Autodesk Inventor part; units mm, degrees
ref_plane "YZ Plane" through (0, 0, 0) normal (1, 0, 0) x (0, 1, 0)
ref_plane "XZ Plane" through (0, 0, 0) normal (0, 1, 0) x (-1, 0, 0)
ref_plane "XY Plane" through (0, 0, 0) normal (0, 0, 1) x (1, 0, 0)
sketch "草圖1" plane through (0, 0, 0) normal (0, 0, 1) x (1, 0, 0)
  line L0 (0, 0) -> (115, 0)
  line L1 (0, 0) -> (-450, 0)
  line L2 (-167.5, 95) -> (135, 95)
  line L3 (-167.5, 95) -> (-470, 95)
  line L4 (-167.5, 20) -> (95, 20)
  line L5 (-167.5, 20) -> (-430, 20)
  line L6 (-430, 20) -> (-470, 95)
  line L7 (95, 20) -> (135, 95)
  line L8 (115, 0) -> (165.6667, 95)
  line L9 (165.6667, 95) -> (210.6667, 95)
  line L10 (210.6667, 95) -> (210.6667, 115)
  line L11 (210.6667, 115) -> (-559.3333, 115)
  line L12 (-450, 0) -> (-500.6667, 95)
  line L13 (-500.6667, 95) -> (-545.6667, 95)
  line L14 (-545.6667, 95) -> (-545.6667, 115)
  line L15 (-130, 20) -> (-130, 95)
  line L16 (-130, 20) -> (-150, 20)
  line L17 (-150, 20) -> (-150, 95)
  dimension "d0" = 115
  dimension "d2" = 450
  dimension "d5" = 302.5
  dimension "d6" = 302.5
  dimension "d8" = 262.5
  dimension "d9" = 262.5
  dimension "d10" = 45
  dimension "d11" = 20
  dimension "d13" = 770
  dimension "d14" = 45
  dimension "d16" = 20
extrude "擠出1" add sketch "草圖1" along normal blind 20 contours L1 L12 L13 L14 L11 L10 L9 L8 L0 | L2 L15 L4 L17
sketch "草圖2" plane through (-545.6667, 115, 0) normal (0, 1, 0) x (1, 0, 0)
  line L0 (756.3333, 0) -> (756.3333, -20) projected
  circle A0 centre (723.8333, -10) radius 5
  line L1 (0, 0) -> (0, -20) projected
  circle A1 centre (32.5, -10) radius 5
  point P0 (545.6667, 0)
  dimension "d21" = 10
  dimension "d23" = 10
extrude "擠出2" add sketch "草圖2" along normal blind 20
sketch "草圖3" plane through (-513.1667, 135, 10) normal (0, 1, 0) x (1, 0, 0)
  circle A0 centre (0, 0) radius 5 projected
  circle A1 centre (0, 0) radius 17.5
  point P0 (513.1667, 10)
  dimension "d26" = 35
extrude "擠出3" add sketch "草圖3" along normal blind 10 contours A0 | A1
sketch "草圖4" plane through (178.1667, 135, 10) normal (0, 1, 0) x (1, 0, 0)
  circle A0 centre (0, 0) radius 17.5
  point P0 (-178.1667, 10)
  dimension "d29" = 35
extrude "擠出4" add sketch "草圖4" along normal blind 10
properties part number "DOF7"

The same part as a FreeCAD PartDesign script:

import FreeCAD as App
import Part
import Sketcher
from FreeCAD import Vector
Q = App.Units.Quantity

doc = App.newDocument("Part")
params = doc.addObject("Spreadsheet::Sheet", "Params")
for row, (alias, value) in enumerate([
    ("sketch1_width", "45 mm"),
    ("sketch1_height", "20 mm"),
    ("sketch1_width2", "320 mm"),
    ("pad1_length", "20 mm"),
    ("sketch2_diameter", "10 mm"),
    ("pad2_length", "20 mm"),
    ("sketch3_diameter", "35 mm"),
    ("pad3_length", "10 mm"),
    ("sketch4_diameter", "35 mm"),
    ("pad4_length", "10 mm"),
], start=1):
    params.set(f"A{row}", alias)
    params.set(f"B{row}", "=" + value)
    params.setAlias(f"B{row}", alias)

body = doc.addObject("PartDesign::Body", "Body")

# Sketch on XY plane
sketch1 = body.newObject("Sketcher::SketchObject", "Sketch")
sketch1.AttachmentSupport = (doc.getObject("XY_Plane"), [""])
sketch1.MapMode = "FlatFace"
sketch1.addGeometry(Part.LineSegment(Vector(-450, 0, 0), Vector(115, 0, 0)), False)
sketch1.addGeometry(Part.LineSegment(Vector(115, 0, 0), Vector(166, 95, 0)), False)
sketch1.addGeometry(Part.LineSegment(Vector(166, 95, 0), Vector(211, 95, 0)), False)
sketch1.addGeometry(Part.LineSegment(Vector(211, 95, 0), Vector(211, 115, 0)), False)
sketch1.addGeometry(Part.LineSegment(Vector(211, 115, 0), Vector(-546, 115, 0)), False)
sketch1.addGeometry(Part.LineSegment(Vector(-546, 115, 0), Vector(-546, 95, 0)), False)
sketch1.addGeometry(Part.LineSegment(Vector(-546, 95, 0), Vector(-501, 95, 0)), False)
sketch1.addGeometry(Part.LineSegment(Vector(-501, 95, 0), Vector(-450, 0, 0)), False)
sketch1.addGeometry(Part.LineSegment(Vector(-470, 95, 0), Vector(-150, 95, 0)), False)
sketch1.addGeometry(Part.LineSegment(Vector(-150, 95, 0), Vector(-150, 20, 0)), False)
sketch1.addGeometry(Part.LineSegment(Vector(-150, 20, 0), Vector(-430, 20, 0)), False)
sketch1.addGeometry(Part.LineSegment(Vector(-430, 20, 0), Vector(-470, 95, 0)), False)
sketch1.addGeometry(Part.LineSegment(Vector(95, 20, 0), Vector(-130, 20, 0)), False)
sketch1.addGeometry(Part.LineSegment(Vector(-130, 20, 0), Vector(-130, 95, 0)), False)
sketch1.addGeometry(Part.LineSegment(Vector(-130, 95, 0), Vector(135, 95, 0)), False)
sketch1.addGeometry(Part.LineSegment(Vector(135, 95, 0), Vector(95, 20, 0)), False)
sketch1.addConstraint(Sketcher.Constraint("Coincident", 0, 2, 1, 1))
sketch1.addConstraint(Sketcher.Constraint("Coincident", 1, 2, 2, 1))
sketch1.addConstraint(Sketcher.Constraint("Coincident", 2, 2, 3, 1))
sketch1.addConstraint(Sketcher.Constraint("Coincident", 3, 2, 4, 1))
sketch1.addConstraint(Sketcher.Constraint("Coincident", 4, 2, 5, 1))
sketch1.addConstraint(Sketcher.Constraint("Coincident", 5, 2, 6, 1))
sketch1.addConstraint(Sketcher.Constraint("Coincident", 6, 2, 7, 1))
sketch1.addConstraint(Sketcher.Constraint("Coincident", 7, 2, 0, 1))
sketch1.addConstraint(Sketcher.Constraint("Coincident", 8, 2, 9, 1))
sketch1.addConstraint(Sketcher.Constraint("Coincident", 9, 2, 10, 1))
sketch1.addConstraint(Sketcher.Constraint("Coincident", 10, 2, 11, 1))
sketch1.addConstraint(Sketcher.Constraint("Coincident", 11, 2, 8, 1))
sketch1.addConstraint(Sketcher.Constraint("Coincident", 12, 2, 13, 1))
sketch1.addConstraint(Sketcher.Constraint("Coincident", 13, 2, 14, 1))
sketch1.addConstraint(Sketcher.Constraint("Coincident", 14, 2, 15, 1))
sketch1.addConstraint(Sketcher.Constraint("Coincident", 15, 2, 12, 1))
sketch1.addConstraint(Sketcher.Constraint("Horizontal", 0))
sketch1.addConstraint(Sketcher.Constraint("Horizontal", 2))
sketch1.addConstraint(Sketcher.Constraint("Vertical", 3))
sketch1.addConstraint(Sketcher.Constraint("Horizontal", 4))
sketch1.addConstraint(Sketcher.Constraint("Vertical", 5))
sketch1.addConstraint(Sketcher.Constraint("Horizontal", 6))
sketch1.addConstraint(Sketcher.Constraint("Horizontal", 8))
sketch1.addConstraint(Sketcher.Constraint("Vertical", 9))
sketch1.addConstraint(Sketcher.Constraint("Horizontal", 10))
sketch1.addConstraint(Sketcher.Constraint("Horizontal", 12))
sketch1.addConstraint(Sketcher.Constraint("Vertical", 13))
sketch1.addConstraint(Sketcher.Constraint("Horizontal", 14))
sketch1.addConstraint(Sketcher.Constraint("PointOnObject", 0, 2, -1))
sketch1.addConstraint(Sketcher.Constraint("Parallel", 7, 11))
sketch1.addConstraint(Sketcher.Constraint("Parallel", 1, 15))
sketch1.addConstraint(Sketcher.Constraint("Horizontal", 2, 2, 5, 2))
sketch1.addConstraint(Sketcher.Constraint("Horizontal", 6, 2, 8, 2))
sketch1.addConstraint(Sketcher.Constraint("Horizontal", 10, 2, 12, 2))
sketch1.addConstraint(Sketcher.Constraint("Horizontal", 11, 2, 13, 2))
sketch1.addConstraint(Sketcher.Constraint("Equal", 2, 6))
sketch1.addConstraint(Sketcher.Constraint("Equal", 1, 7))
sketch1.addConstraint(Sketcher.Constraint("DistanceX", 2, 1, 2, 2, Q("45 mm")))
sketch1.addConstraint(Sketcher.Constraint("DistanceY", 3, 1, 3, 2, Q("20 mm")))
sketch1.addConstraint(Sketcher.Constraint("DistanceX", -1, 1, 0, 2, Q("115 mm")))
sketch1.addConstraint(Sketcher.Constraint("DistanceY", -1, 1, 3, 2, Q("115 mm")))
sketch1.addConstraint(Sketcher.Constraint("DistanceX", 7, 2, -1, 1, Q("450 mm")))
sketch1.addConstraint(Sketcher.Constraint("DistanceY", -1, 1, 9, 2, Q("20 mm")))
sketch1.addConstraint(Sketcher.Constraint("DistanceX", 7, 2, 10, 2, Q("20 mm")))
sketch1.addConstraint(Sketcher.Constraint("DistanceX", 11, 2, 7, 2, Q("20 mm")))
sketch1.addConstraint(Sketcher.Constraint("DistanceX", 9, 2, 12, 2, Q("20 mm")))
sketch1.addConstraint(Sketcher.Constraint("DistanceX", 0, 2, 14, 2, Q("20 mm")))
sketch1.addConstraint(Sketcher.Constraint("DistanceX", 8, 1, 8, 2, Q("320 mm")))
sketch1.setExpression("Constraints[37]", "Params.sketch1_width")
sketch1.setExpression("Constraints[38]", "Params.sketch1_height")
sketch1.setExpression("Constraints[47]", "Params.sketch1_width2")
pad1 = body.newObject("PartDesign::Pad", "Pad")
pad1.Profile = sketch1
pad1.setExpression("Length", "Params.pad1_length")

# Sketch on XZ plane
sketch2 = body.newObject("Sketcher::SketchObject", "Sketch001")
sketch2.AttachmentSupport = (doc.getObject("XZ_Plane"), [""])
sketch2.MapMode = "FlatFace"
sketch2.AttachmentOffset = App.Placement(Vector(0, 0, -115), App.Rotation())
sketch2.addGeometry(Part.Circle(Vector(178, 10, 0), Vector(0, 0, 1), 5), False)
sketch2.addGeometry(Part.Circle(Vector(-513, 10, 0), Vector(0, 0, 1), 5), False)
sketch2.addConstraint(Sketcher.Constraint("Equal", 0, 1))
sketch2.addConstraint(Sketcher.Constraint("Horizontal", 0, 3, 1, 3))
sketch2.addConstraint(Sketcher.Constraint("Diameter", 0, Q("10 mm")))
sketch2.addConstraint(Sketcher.Constraint("DistanceY", -1, 1, 0, 3, Q("10 mm")))
sketch2.addConstraint(Sketcher.Constraint("DistanceX", -1, 1, 0, 3, Q("178.1666 mm")))
sketch2.addConstraint(Sketcher.Constraint("DistanceX", 1, 3, -1, 1, Q("513.1667 mm")))
sketch2.setExpression("Constraints[2]", "Params.sketch2_diameter")
pad2 = body.newObject("PartDesign::Pad", "Pad001")
pad2.Profile = sketch2
pad2.setExpression("Length", "Params.pad2_length")
pad2.Reversed = True

# Sketch on XZ plane
sketch3 = body.newObject("Sketcher::SketchObject", "Sketch002")
sketch3.AttachmentSupport = (doc.getObject("XZ_Plane"), [""])
sketch3.MapMode = "FlatFace"
sketch3.AttachmentOffset = App.Placement(Vector(0, 0, -135), App.Rotation())
sketch3.addGeometry(Part.Circle(Vector(-513, 10, 0), Vector(0, 0, 1), 18), False)
sketch3.addConstraint(Sketcher.Constraint("Diameter", 0, Q("35 mm")))
sketch3.addConstraint(Sketcher.Constraint("DistanceY", -1, 1, 0, 3, Q("10 mm")))
sketch3.addConstraint(Sketcher.Constraint("DistanceX", 0, 3, -1, 1, Q("513.1667 mm")))
sketch3.setExpression("Constraints[0]", "Params.sketch3_diameter")
pad3 = body.newObject("PartDesign::Pad", "Pad002")
pad3.Profile = sketch3
pad3.setExpression("Length", "Params.pad3_length")
pad3.Reversed = True

# Sketch on XZ plane
sketch4 = body.newObject("Sketcher::SketchObject", "Sketch003")
sketch4.AttachmentSupport = (doc.getObject("XZ_Plane"), [""])
sketch4.MapMode = "FlatFace"
sketch4.AttachmentOffset = App.Placement(Vector(0, 0, -135), App.Rotation())
sketch4.addGeometry(Part.Circle(Vector(178, 10, 0), Vector(0, 0, 1), 18), False)
sketch4.addConstraint(Sketcher.Constraint("Diameter", 0, Q("35 mm")))
sketch4.addConstraint(Sketcher.Constraint("DistanceY", -1, 1, 0, 3, Q("10 mm")))
sketch4.addConstraint(Sketcher.Constraint("DistanceX", -1, 1, 0, 3, Q("178.1667 mm")))
sketch4.setExpression("Constraints[0]", "Params.sketch4_diameter")
pad4 = body.newObject("PartDesign::Pad", "Pad003")
pad4.Profile = sketch4
pad4.setExpression("Length", "Params.pad4_length")
pad4.Reversed = True

doc.recompute()
